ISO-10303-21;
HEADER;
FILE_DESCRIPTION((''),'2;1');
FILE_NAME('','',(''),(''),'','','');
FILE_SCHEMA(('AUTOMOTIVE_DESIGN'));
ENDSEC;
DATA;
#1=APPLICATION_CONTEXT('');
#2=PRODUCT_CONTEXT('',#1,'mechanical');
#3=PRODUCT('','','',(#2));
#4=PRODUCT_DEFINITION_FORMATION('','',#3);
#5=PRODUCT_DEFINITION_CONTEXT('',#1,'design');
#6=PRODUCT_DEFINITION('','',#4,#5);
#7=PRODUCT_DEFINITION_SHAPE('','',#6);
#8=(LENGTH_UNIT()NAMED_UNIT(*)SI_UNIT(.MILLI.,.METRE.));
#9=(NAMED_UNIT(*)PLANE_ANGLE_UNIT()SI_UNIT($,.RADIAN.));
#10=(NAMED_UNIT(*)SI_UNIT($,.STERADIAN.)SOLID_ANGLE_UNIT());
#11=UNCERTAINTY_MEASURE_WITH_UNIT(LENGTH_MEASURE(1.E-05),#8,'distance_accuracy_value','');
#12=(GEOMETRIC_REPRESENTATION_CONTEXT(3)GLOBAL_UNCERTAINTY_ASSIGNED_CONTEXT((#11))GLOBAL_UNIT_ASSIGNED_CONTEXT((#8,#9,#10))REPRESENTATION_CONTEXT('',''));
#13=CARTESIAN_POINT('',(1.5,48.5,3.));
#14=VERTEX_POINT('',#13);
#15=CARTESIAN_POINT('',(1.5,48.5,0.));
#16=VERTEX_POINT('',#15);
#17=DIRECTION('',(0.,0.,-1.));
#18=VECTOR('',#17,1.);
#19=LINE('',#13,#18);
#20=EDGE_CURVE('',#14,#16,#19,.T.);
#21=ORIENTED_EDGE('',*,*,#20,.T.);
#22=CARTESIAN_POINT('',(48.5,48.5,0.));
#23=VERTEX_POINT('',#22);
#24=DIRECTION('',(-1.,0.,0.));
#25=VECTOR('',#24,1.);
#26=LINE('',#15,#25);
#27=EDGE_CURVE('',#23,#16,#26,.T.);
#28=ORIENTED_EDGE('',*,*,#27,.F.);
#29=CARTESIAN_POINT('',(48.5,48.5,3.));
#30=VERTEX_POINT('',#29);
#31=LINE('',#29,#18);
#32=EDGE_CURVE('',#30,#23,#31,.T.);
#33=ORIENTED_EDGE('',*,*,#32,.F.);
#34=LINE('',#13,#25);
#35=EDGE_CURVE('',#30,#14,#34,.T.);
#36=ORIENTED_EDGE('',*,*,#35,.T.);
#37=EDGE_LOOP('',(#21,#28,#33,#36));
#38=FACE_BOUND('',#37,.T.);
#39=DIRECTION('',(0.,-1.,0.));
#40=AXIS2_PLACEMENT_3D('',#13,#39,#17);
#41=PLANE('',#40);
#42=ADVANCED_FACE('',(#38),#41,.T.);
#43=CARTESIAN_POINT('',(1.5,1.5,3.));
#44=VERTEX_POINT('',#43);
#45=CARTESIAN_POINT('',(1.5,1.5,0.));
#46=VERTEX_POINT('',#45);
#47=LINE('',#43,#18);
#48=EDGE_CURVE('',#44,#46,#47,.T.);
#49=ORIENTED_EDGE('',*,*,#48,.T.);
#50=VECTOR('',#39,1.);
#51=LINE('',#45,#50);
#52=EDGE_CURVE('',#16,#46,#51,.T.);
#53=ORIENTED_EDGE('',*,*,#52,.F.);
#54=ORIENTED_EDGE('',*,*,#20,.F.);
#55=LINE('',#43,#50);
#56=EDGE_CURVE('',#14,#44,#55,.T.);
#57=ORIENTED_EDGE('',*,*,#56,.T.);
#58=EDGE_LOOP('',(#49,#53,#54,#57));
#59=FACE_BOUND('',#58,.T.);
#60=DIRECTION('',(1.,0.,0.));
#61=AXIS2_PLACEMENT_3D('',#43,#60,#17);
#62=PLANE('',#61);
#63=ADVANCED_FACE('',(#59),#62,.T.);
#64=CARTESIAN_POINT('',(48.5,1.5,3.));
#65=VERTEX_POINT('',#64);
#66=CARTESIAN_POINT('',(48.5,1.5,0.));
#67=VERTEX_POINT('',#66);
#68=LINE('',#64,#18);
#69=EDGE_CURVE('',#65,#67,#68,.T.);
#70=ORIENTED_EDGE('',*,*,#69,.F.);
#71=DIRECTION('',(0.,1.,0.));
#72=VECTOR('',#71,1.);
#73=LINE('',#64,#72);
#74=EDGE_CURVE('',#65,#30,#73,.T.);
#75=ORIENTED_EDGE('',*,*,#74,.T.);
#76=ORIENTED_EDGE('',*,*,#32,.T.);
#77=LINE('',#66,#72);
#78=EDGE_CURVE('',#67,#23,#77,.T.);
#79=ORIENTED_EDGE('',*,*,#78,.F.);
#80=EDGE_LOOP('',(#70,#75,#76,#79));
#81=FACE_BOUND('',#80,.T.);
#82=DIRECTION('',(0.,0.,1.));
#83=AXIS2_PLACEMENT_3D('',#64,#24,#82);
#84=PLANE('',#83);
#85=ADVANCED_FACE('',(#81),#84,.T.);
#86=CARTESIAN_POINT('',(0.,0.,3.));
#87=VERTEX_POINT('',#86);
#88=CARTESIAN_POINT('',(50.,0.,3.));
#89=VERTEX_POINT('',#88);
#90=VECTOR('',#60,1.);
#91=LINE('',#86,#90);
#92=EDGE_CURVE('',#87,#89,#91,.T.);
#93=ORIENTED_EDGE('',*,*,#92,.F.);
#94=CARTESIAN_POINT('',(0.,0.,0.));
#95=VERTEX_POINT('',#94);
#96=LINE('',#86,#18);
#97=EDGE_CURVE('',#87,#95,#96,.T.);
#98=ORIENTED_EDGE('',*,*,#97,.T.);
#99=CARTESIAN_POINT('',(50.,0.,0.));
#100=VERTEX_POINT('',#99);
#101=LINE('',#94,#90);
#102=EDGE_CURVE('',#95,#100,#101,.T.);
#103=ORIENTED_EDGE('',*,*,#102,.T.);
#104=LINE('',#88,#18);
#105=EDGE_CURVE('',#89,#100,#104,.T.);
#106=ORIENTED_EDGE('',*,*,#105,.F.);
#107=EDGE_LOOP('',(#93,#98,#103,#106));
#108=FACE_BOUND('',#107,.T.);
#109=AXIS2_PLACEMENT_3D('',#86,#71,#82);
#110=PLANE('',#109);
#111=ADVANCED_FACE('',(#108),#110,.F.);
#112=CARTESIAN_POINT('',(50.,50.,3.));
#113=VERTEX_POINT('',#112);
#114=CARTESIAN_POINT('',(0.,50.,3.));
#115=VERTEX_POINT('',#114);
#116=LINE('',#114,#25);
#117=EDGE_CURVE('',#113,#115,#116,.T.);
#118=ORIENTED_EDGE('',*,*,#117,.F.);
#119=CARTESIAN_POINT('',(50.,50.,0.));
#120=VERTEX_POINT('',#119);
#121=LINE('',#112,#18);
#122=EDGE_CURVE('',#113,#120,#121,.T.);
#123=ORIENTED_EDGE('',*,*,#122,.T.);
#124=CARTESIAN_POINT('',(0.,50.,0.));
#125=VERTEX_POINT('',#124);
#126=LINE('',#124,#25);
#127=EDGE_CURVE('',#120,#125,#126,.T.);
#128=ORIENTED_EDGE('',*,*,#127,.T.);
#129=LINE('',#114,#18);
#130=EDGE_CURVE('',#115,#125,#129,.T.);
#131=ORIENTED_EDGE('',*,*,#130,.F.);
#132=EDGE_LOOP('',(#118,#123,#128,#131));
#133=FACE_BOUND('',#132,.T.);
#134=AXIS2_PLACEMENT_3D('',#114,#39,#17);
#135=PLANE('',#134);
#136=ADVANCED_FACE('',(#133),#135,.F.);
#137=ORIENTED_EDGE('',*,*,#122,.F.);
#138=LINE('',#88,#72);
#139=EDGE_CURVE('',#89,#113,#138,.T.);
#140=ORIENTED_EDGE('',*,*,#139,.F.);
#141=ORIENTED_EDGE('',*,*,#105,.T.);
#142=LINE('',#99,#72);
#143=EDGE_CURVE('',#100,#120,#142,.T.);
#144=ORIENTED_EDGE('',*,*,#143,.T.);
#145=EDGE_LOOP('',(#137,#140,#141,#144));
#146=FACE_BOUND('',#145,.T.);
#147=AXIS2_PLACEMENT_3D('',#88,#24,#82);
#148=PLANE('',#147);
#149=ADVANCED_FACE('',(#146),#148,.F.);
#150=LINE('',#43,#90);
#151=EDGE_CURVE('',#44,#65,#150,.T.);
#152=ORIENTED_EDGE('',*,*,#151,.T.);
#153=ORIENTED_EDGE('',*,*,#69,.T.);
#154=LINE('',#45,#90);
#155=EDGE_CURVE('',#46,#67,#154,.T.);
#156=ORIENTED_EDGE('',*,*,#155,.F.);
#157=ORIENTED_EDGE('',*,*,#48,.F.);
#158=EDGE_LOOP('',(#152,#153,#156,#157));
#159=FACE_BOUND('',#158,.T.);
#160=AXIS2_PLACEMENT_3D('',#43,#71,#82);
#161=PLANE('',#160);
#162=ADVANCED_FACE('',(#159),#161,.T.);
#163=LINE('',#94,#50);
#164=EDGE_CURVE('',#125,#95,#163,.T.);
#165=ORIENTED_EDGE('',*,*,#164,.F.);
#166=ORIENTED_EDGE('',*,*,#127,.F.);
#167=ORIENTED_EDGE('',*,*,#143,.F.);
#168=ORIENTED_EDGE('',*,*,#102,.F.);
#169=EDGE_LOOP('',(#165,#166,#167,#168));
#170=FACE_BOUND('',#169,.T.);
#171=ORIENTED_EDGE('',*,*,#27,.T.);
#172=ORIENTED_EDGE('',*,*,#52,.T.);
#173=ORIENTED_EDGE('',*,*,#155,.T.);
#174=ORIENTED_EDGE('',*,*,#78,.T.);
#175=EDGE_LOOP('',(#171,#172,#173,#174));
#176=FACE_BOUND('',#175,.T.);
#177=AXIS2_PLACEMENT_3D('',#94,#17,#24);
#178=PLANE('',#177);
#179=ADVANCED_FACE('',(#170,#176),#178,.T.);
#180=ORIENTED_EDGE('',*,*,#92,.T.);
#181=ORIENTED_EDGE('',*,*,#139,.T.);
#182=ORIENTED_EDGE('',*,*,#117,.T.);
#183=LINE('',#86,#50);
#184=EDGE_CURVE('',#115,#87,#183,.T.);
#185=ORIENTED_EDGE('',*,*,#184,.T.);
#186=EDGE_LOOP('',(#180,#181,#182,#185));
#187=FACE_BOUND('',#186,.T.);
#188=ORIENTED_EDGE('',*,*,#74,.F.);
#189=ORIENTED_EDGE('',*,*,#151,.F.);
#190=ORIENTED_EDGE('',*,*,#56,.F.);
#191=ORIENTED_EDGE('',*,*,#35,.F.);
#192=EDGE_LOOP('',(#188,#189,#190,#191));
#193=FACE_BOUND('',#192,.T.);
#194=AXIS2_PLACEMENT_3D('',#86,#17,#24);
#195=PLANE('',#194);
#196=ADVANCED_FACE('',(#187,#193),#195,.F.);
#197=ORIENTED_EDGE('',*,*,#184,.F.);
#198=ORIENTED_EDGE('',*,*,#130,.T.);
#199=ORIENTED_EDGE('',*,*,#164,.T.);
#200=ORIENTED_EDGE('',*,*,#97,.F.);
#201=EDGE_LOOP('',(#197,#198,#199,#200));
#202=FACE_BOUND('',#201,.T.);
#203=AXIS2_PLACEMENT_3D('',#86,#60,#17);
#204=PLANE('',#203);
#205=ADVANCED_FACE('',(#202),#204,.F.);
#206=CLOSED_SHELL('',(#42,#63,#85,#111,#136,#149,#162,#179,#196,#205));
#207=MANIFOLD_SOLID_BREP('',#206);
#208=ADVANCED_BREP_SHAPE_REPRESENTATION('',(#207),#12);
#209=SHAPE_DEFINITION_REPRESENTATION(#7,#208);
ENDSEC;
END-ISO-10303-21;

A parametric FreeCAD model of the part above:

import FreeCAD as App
import Part
import Sketcher

V = App.Vector
Q = App.Units.Quantity


def add_polygon(sketch, points):
    """Adds a closed chain of lines whose ends are joined by coincident constraints."""
    first, n = sketch.GeometryCount, len(points)
    for a, b in zip(points, points[1:] + points[:1]):
        sketch.addGeometry(Part.LineSegment(App.Vector(*a, 0), App.Vector(*b, 0)), False)
    for i in range(n):
        sketch.addConstraint(Sketcher.Constraint("Coincident", first + i, 2, first + (i + 1) % n, 1))

doc = App.newDocument("Part")
body = doc.addObject("PartDesign::Body", "Body")

# Sketch on XY plane
sketch1 = body.newObject("Sketcher::SketchObject", "Sketch")
sketch1.AttachmentSupport = (doc.getObject("XY_Plane"), [""])
sketch1.MapMode = "FlatFace"
add_polygon(sketch1, [(0, 50), (0, 0), (50, 0), (50, 50)])  # lines 0-3
add_polygon(sketch1, [(48, 2), (2, 2), (2, 48), (48, 48)])  # lines 4-7
sketch1.addConstraint(Sketcher.Constraint("Vertical", 0))
sketch1.addConstraint(Sketcher.Constraint("Horizontal", 1))
sketch1.addConstraint(Sketcher.Constraint("Vertical", 2))
sketch1.addConstraint(Sketcher.Constraint("Horizontal", 3))
sketch1.addConstraint(Sketcher.Constraint("Horizontal", 4))
sketch1.addConstraint(Sketcher.Constraint("Vertical", 5))
sketch1.addConstraint(Sketcher.Constraint("Horizontal", 6))
sketch1.addConstraint(Sketcher.Constraint("Vertical", 7))
sketch1.addConstraint(Sketcher.Constraint("Coincident", 0, 2, -1, 1))
sketch1.addConstraint(Sketcher.Constraint("Equal", 3, 0))
sketch1.addConstraint(Sketcher.Constraint("Equal", 6, 5))
sketch1.addConstraint(Sketcher.Constraint("DistanceX", 1, 1, 1, 2, Q("50 mm")))
sketch1.addConstraint(Sketcher.Constraint("DistanceX", 4, 2, 4, 1, Q("47 mm")))
sketch1.addConstraint(Sketcher.Constraint("DistanceX", -1, 1, 4, 2, Q("1.5 mm")))
sketch1.addConstraint(Sketcher.Constraint("DistanceY", -1, 1, 4, 2, Q("1.5 mm")))
pad1 = body.newObject("PartDesign::Pad", "Pad")
pad1.Profile = sketch1
pad1.Length = 3

doc.recompute()
